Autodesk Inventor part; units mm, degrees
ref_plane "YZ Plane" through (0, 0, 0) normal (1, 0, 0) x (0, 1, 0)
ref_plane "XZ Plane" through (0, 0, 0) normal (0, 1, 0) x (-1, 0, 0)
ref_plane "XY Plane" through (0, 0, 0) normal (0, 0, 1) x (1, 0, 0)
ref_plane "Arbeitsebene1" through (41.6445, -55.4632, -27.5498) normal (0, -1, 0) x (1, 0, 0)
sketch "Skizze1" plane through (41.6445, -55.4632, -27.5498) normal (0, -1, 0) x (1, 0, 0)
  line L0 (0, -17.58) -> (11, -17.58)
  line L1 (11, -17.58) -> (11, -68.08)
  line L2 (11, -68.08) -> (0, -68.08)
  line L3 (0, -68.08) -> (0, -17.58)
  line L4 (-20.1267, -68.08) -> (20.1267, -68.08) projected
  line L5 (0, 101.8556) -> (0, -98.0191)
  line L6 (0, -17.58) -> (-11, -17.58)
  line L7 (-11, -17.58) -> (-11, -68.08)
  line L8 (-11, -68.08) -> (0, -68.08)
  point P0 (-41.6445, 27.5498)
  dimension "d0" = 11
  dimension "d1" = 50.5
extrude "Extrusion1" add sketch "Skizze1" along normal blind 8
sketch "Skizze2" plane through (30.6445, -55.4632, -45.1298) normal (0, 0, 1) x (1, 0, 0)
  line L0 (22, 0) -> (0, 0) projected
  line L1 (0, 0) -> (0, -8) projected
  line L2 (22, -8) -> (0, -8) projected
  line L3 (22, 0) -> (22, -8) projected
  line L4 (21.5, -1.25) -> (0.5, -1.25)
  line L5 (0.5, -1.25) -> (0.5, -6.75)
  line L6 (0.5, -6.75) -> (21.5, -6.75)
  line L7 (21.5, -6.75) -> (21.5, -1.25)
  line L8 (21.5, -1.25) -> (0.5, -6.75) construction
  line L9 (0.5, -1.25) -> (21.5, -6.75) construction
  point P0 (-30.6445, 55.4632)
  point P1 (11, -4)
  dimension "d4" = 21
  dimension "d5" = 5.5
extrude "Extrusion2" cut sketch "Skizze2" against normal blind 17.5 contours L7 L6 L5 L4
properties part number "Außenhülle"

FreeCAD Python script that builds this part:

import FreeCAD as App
import Part
import Sketcher
Q = App.Units.Quantity


def add_polygon(sketch, points):
    """Adds a closed chain of lines whose ends are joined by coincident constraints."""
    first, n = sketch.GeometryCount, len(points)
    for a, b in zip(points, points[1:] + points[:1]):
        sketch.addGeometry(Part.LineSegment(App.Vector(*a, 0), App.Vector(*b, 0)), False)
    for i in range(n):
        sketch.addConstraint(Sketcher.Constraint("Coincident", first + i, 2, first + (i + 1) % n, 1))

doc = App.newDocument("Part")
body = doc.addObject("PartDesign::Body", "Body")

sketch1 = body.newObject("Sketcher::SketchObject", "Sketch")
sketch1.AttachmentSupport = (doc.getObject("XZ_Plane"), [""])
sketch1.MapMode = "FlatFace"
sketch1.AttachmentOffset = App.Placement(App.Vector(0, 0, 55.4632), App.Rotation())
add_polygon(sketch1, [(53, -45), (31, -45), (31, -96), (53, -96)])
sketch1.addConstraint([
    Sketcher.Constraint("Horizontal", 0),
    Sketcher.Constraint("Vertical", 1),
    Sketcher.Constraint("Horizontal", 2),
    Sketcher.Constraint("Vertical", 3),
    Sketcher.Constraint("DistanceY", 1, 2, 1, 1, Q("50.5 mm")),
    Sketcher.Constraint("DistanceX", 0, 2, 0, 1, Q("22 mm")),
    Sketcher.Constraint("DistanceX", -1, 1, 0, 2, Q("30.6445 mm")),
    Sketcher.Constraint("DistanceY", 0, 2, -1, 1, Q("45.1298 mm")),
])
pad1 = body.newObject("PartDesign::Pad", "Pad")
pad1.Profile = sketch1
pad1.Length = 8

sketch2 = body.newObject("Sketcher::SketchObject", "Sketch001")
sketch2.AttachmentSupport = (doc.getObject("XY_Plane"), [""])
sketch2.MapMode = "FlatFace"
sketch2.AttachmentOffset = App.Placement(App.Vector(0, 0, -45.1298), App.Rotation())
add_polygon(sketch2, [(52, -62), (52, -57), (31, -57), (31, -62)])
sketch2.addConstraint([
    Sketcher.Constraint("Vertical", 0),
    Sketcher.Constraint("Horizontal", 1),
    Sketcher.Constraint("Vertical", 2),
    Sketcher.Constraint("Horizontal", 3),
    Sketcher.Constraint("DistanceX", 1, 2, 1, 1, Q("21 mm")),
    Sketcher.Constraint("DistanceY", 0, 1, 0, 2, Q("5.5 mm")),
    Sketcher.Constraint("DistanceX", -1, 1, 0, 2, Q("52.1445 mm")),
    Sketcher.Constraint("DistanceY", 0, 2, -1, 1, Q("56.7132 mm")),
])
pocket1 = body.newObject("PartDesign::Pocket", "Pocket")
pocket1.Profile = sketch2
pocket1.Length = 17.5

doc.recompute()
